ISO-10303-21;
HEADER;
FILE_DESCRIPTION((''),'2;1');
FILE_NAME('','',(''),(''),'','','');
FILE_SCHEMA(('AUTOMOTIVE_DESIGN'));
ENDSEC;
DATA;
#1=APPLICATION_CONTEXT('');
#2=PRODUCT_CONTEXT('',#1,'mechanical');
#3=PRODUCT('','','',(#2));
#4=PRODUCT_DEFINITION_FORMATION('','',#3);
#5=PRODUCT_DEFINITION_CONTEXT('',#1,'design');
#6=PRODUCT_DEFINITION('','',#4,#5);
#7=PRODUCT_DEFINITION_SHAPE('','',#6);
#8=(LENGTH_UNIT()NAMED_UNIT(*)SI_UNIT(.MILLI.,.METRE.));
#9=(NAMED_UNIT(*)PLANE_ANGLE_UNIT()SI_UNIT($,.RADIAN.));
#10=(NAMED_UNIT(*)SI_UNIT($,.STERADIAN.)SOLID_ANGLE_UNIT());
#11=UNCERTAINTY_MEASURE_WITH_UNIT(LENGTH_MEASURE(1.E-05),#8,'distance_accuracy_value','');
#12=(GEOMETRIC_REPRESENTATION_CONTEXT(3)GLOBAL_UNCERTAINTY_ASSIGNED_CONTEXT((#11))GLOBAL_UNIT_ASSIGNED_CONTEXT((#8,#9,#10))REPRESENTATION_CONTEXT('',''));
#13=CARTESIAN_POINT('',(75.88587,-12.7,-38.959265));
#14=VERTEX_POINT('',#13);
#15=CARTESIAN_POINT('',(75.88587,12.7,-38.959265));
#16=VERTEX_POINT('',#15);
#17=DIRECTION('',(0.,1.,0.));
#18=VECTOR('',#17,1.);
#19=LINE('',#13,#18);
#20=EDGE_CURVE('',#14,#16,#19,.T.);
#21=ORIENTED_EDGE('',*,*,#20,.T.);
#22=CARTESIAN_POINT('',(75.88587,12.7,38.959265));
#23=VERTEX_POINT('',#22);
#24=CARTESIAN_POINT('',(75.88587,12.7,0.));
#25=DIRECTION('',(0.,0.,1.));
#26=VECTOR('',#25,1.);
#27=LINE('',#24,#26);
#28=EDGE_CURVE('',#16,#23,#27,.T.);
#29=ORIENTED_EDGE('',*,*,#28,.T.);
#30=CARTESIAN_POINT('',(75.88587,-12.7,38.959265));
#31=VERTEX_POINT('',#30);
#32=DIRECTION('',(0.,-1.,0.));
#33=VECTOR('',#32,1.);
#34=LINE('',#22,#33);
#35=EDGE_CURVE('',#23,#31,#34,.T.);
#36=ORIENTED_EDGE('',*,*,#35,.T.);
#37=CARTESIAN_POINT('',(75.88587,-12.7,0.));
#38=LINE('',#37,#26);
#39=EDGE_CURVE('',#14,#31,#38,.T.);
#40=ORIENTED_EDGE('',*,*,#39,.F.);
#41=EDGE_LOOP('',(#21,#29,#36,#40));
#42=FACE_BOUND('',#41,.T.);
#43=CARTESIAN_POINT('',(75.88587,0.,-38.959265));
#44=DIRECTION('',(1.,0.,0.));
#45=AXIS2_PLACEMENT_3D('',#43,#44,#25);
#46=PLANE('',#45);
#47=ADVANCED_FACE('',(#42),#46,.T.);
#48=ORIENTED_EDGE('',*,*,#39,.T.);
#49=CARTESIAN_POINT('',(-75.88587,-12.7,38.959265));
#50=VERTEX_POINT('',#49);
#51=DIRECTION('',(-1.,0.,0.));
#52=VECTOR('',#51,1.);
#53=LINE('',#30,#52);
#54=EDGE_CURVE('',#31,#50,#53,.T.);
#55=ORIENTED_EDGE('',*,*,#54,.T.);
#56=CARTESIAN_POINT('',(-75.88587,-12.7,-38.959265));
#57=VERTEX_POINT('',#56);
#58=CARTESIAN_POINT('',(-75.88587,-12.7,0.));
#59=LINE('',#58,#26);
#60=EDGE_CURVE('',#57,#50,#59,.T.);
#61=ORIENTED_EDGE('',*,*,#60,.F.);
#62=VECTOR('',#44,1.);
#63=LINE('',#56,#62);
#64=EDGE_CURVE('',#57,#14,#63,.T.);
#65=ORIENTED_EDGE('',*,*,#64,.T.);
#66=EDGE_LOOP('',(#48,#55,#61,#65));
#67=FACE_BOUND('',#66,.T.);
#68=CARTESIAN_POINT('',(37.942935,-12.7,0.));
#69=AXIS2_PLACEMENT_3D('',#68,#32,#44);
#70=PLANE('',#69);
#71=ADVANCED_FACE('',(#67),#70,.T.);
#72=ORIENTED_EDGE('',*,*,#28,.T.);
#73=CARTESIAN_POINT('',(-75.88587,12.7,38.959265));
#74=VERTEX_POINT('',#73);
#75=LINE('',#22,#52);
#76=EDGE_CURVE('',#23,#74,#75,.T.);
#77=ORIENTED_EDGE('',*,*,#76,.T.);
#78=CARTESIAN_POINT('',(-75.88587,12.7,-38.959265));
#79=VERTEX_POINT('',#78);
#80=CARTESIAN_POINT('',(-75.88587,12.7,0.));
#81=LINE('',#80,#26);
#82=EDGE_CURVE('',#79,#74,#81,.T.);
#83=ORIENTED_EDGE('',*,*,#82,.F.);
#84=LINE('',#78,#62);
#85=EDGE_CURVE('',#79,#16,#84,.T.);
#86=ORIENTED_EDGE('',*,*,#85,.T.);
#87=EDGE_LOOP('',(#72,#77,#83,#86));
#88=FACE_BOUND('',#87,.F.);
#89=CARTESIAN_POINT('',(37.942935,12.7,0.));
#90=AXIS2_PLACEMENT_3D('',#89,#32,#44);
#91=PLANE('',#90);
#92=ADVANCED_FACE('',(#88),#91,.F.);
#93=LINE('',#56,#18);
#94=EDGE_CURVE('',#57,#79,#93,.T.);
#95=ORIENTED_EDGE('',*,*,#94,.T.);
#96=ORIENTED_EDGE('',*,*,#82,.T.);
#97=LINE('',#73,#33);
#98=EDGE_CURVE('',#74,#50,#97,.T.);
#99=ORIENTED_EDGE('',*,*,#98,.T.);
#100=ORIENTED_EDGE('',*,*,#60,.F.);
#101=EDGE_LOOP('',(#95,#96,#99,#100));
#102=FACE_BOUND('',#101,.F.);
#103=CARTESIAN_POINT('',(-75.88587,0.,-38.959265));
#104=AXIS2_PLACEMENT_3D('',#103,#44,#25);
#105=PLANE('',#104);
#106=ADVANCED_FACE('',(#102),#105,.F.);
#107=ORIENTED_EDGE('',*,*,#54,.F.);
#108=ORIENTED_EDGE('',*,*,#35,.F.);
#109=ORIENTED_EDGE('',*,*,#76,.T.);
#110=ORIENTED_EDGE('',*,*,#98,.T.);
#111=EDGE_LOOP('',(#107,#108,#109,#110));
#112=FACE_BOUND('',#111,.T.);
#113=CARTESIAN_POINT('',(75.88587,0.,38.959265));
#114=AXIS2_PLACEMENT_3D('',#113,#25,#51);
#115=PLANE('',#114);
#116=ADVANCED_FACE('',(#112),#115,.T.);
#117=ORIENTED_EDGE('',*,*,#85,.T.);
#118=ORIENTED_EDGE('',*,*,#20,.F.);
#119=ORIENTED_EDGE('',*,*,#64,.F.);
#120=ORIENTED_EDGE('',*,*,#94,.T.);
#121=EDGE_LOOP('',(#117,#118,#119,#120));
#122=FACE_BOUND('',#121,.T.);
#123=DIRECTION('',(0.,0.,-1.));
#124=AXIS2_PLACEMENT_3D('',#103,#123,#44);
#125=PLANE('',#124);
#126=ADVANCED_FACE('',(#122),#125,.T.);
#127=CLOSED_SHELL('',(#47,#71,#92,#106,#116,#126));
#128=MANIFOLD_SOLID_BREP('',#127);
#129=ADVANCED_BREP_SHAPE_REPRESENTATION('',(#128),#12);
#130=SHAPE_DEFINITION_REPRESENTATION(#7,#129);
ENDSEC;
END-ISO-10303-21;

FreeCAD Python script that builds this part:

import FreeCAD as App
import Part
import Sketcher

V = App.Vector
Q = App.Units.Quantity


def faces_at(feature, points):
    """Names of the faces that lie closest to the given points."""
    faces = feature.Shape.Faces
    near = lambda p: min(range(len(faces)), key=lambda i: faces[i].distToShape(Part.Vertex(*p))[0])
    return sorted({f"Face{near(p) + 1}" for p in points})

doc = App.newDocument("Part")
body = doc.addObject("PartDesign::Body", "Body")

# Sketch on XZ plane
sketch1 = body.newObject("Sketcher::SketchObject", "Sketch")
sketch1.AttachmentSupport = (doc.getObject("XZ_Plane"), [""])
sketch1.MapMode = "FlatFace"
sketch1.addGeometry([
    Part.LineSegment(V(75.88587, -38.959265, 0), V(75.88587, 38.959265, 0)),
    Part.LineSegment(V(75.88587, 38.959265, 0), V(-75.88587, 38.959265, 0)),
    Part.LineSegment(V(-75.88587, 38.959265, 0), V(-75.88587, -38.959265, 0)),
    Part.LineSegment(V(-75.88587, -38.959265, 0), V(75.88587, -38.959265, 0)),
], False)
sketch1.addConstraint([
    Sketcher.Constraint("Coincident", 0, 2, 1, 1),
    Sketcher.Constraint("Coincident", 1, 2, 2, 1),
    Sketcher.Constraint("Coincident", 2, 2, 3, 1),
    Sketcher.Constraint("Coincident", 3, 2, 0, 1),
    Sketcher.Constraint("Vertical", 0),
    Sketcher.Constraint("Horizontal", 1),
    Sketcher.Constraint("Vertical", 2),
    Sketcher.Constraint("Horizontal", 3),
    Sketcher.Constraint("Symmetric", 0, 2, 2, 2, -1, 1),
    Sketcher.Constraint("DistanceX", 1, 2, 1, 1, Q("151.77174 mm")),
    Sketcher.Constraint("DistanceY", 0, 1, 0, 2, Q("77.91853 mm")),
])
pad1 = body.newObject("PartDesign::Pad", "Pad")
pad1.Profile = sketch1
pad1.Length = Q("1 in")
pad1.Midplane = True
doc.recompute()

thickness = body.newObject("PartDesign::Thickness", "Thickness")
thickness.Base = (pad1, faces_at(pad1, [(0, -12.7, 0)]))
thickness.Value = Q("1 in")
thickness.Reversed = True
thickness.Join = "Arc"

doc.recompute()
